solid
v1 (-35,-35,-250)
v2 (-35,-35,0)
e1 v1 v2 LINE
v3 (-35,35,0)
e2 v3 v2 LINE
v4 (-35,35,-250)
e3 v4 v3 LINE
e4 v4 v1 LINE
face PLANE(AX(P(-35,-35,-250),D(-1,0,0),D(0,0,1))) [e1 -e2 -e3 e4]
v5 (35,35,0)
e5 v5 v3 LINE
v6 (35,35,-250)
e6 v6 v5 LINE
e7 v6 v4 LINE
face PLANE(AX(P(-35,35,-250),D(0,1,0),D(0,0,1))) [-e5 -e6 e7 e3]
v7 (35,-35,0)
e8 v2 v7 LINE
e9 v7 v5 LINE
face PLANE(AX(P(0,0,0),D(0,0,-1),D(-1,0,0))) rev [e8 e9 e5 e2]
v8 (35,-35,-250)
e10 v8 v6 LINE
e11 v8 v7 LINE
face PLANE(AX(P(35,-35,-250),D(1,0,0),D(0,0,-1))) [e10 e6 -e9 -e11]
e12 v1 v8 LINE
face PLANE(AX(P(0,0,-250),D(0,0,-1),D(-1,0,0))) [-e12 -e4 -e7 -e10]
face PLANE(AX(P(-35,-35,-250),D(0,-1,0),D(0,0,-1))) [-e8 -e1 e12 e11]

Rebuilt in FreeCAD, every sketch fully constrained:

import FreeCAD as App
import Part
import Sketcher

V = App.Vector
Q = App.Units.Quantity


def add_polygon(sketch, points):
    """Adds a closed chain of lines whose ends are joined by coincident constraints."""
    first, n = sketch.GeometryCount, len(points)
    for a, b in zip(points, points[1:] + points[:1]):
        sketch.addGeometry(Part.LineSegment(App.Vector(*a, 0), App.Vector(*b, 0)), False)
    for i in range(n):
        sketch.addConstraint(Sketcher.Constraint("Coincident", first + i, 2, first + (i + 1) % n, 1))

doc = App.newDocument("Part")
body = doc.addObject("PartDesign::Body", "Body")

# Sketch on XY plane
sketch1 = doc.addObject("Sketcher::SketchObject", "Sketch")
body.addObject(sketch1)
sketch1.AttachmentSupport = (doc.XY_Plane, [""])
sketch1.MapMode = "FlatFace"
add_polygon(sketch1, [(-35, 35), (-35, -35), (35, -35), (35, 35)])  # lines 0-3
sketch1.addConstraint(Sketcher.Constraint("Vertical", 0))
sketch1.addConstraint(Sketcher.Constraint("Horizontal", 1))
sketch1.addConstraint(Sketcher.Constraint("Vertical", 2))
sketch1.addConstraint(Sketcher.Constraint("Horizontal", 3))
sketch1.addConstraint(Sketcher.Constraint("Symmetric", 0, 2, 2, 2, -1, 1))
sketch1.addConstraint(Sketcher.Constraint("Equal", 3, 0))
sketch1.addConstraint(Sketcher.Constraint("DistanceX", 1, 1, 1, 2, Q("70 mm")))
pad1 = doc.addObject("PartDesign::Pad", "Pad")
body.addObject(pad1)
pad1.Profile = sketch1
pad1.Length = 250
pad1.Reversed = True

doc.recompute()
